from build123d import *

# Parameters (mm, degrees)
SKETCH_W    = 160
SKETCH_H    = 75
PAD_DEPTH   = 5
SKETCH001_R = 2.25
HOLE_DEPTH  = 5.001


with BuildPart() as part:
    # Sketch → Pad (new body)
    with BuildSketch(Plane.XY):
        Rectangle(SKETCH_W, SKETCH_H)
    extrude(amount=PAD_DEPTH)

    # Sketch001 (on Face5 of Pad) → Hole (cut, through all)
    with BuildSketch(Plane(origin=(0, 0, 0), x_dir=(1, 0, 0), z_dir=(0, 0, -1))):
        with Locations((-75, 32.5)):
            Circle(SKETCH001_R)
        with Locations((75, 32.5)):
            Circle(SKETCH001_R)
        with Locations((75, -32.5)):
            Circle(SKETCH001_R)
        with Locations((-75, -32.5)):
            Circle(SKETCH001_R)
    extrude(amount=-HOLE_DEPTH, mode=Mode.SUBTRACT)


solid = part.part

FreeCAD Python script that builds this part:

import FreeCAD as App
import Part
import Sketcher

doc = App.newDocument("Part")
body = doc.addObject("PartDesign::Body", "Body")

sketch1 = doc.addObject("Sketcher::SketchObject", "Sketch")
body.addObject(sketch1)
sketch1.AttachmentSupport = (doc.XY_Plane, [""])
sketch1.MapMode = "FlatFace"
sketch1.addGeometry(Part.LineSegment(App.Vector(-80, 37.5, 0), App.Vector(-80, -37.5, 0)), False)
sketch1.addGeometry(Part.LineSegment(App.Vector(-80, -37.5, 0), App.Vector(80, -37.5, 0)), False)
sketch1.addGeometry(Part.LineSegment(App.Vector(80, -37.5, 0), App.Vector(80, 37.5, 0)), False)
sketch1.addGeometry(Part.LineSegment(App.Vector(80, 37.5, 0), App.Vector(-80, 37.5, 0)), False)
sketch1.addConstraint(Sketcher.Constraint("Coincident", 0, 2, 1, 1))
sketch1.addConstraint(Sketcher.Constraint("Coincident", 1, 2, 2, 1))
sketch1.addConstraint(Sketcher.Constraint("Coincident", 2, 2, 3, 1))
sketch1.addConstraint(Sketcher.Constraint("Coincident", 3, 2, 0, 1))
sketch1.addConstraint(Sketcher.Constraint("Vertical", 0))
sketch1.addConstraint(Sketcher.Constraint("Horizontal", 1))
sketch1.addConstraint(Sketcher.Constraint("Vertical", 2))
sketch1.addConstraint(Sketcher.Constraint("Horizontal", 3))
sketch1.addConstraint(Sketcher.Constraint("Symmetric", 0, 2, 2, 2, -1, 1))
sketch1.addConstraint(Sketcher.Constraint("DistanceX", 1, 1, 1, 2, 160.0))
sketch1.addConstraint(Sketcher.Constraint("DistanceY", 0, 2, 0, 1, 75.0))
pad1 = doc.addObject("PartDesign::Pad", "Pad")
body.addObject(pad1)
pad1.Profile = sketch1
pad1.Length = 5

sketch2 = doc.addObject("Sketcher::SketchObject", "Sketch001")
body.addObject(sketch2)
sketch2.AttachmentSupport = (doc.XY_Plane, [""])
sketch2.MapMode = "FlatFace"
sketch2.addGeometry(Part.Circle(App.Vector(-75, -32.5, 0), App.Vector(0, 0, 1), 2.25), False)
sketch2.addGeometry(Part.Circle(App.Vector(75, -32.5, 0), App.Vector(0, 0, 1), 2.25), False)
sketch2.addGeometry(Part.Circle(App.Vector(75, 32.5, 0), App.Vector(0, 0, 1), 2.25), False)
sketch2.addGeometry(Part.Circle(App.Vector(-75, 32.5, 0), App.Vector(0, 0, 1), 2.25), False)
sketch2.addConstraint(Sketcher.Constraint("Equal", 0, 1))
sketch2.addConstraint(Sketcher.Constraint("Equal", 1, 2))
sketch2.addConstraint(Sketcher.Constraint("Equal", 2, 3))
sketch2.addConstraint(Sketcher.Constraint("Symmetric", 0, 3, 2, 3, -1, 1))
sketch2.addConstraint(Sketcher.Constraint("Symmetric", 1, 3, 3, 3, -1, 1))
sketch2.addConstraint(Sketcher.Constraint("Symmetric", 0, 3, 1, 3, -2))
sketch2.addConstraint(Sketcher.Constraint("Diameter", 0, 4.5))
sketch2.addConstraint(Sketcher.Constraint("DistanceX", 0, 3, -1, 1, 75.0))
sketch2.addConstraint(Sketcher.Constraint("DistanceY", 1, 3, 2, 3, 65.0))
pocket1 = doc.addObject("PartDesign::Pocket", "Pocket")
body.addObject(pocket1)
pocket1.Profile = sketch2
pocket1.Type = "ThroughAll"
pocket1.Reversed = True

doc.recompute()
